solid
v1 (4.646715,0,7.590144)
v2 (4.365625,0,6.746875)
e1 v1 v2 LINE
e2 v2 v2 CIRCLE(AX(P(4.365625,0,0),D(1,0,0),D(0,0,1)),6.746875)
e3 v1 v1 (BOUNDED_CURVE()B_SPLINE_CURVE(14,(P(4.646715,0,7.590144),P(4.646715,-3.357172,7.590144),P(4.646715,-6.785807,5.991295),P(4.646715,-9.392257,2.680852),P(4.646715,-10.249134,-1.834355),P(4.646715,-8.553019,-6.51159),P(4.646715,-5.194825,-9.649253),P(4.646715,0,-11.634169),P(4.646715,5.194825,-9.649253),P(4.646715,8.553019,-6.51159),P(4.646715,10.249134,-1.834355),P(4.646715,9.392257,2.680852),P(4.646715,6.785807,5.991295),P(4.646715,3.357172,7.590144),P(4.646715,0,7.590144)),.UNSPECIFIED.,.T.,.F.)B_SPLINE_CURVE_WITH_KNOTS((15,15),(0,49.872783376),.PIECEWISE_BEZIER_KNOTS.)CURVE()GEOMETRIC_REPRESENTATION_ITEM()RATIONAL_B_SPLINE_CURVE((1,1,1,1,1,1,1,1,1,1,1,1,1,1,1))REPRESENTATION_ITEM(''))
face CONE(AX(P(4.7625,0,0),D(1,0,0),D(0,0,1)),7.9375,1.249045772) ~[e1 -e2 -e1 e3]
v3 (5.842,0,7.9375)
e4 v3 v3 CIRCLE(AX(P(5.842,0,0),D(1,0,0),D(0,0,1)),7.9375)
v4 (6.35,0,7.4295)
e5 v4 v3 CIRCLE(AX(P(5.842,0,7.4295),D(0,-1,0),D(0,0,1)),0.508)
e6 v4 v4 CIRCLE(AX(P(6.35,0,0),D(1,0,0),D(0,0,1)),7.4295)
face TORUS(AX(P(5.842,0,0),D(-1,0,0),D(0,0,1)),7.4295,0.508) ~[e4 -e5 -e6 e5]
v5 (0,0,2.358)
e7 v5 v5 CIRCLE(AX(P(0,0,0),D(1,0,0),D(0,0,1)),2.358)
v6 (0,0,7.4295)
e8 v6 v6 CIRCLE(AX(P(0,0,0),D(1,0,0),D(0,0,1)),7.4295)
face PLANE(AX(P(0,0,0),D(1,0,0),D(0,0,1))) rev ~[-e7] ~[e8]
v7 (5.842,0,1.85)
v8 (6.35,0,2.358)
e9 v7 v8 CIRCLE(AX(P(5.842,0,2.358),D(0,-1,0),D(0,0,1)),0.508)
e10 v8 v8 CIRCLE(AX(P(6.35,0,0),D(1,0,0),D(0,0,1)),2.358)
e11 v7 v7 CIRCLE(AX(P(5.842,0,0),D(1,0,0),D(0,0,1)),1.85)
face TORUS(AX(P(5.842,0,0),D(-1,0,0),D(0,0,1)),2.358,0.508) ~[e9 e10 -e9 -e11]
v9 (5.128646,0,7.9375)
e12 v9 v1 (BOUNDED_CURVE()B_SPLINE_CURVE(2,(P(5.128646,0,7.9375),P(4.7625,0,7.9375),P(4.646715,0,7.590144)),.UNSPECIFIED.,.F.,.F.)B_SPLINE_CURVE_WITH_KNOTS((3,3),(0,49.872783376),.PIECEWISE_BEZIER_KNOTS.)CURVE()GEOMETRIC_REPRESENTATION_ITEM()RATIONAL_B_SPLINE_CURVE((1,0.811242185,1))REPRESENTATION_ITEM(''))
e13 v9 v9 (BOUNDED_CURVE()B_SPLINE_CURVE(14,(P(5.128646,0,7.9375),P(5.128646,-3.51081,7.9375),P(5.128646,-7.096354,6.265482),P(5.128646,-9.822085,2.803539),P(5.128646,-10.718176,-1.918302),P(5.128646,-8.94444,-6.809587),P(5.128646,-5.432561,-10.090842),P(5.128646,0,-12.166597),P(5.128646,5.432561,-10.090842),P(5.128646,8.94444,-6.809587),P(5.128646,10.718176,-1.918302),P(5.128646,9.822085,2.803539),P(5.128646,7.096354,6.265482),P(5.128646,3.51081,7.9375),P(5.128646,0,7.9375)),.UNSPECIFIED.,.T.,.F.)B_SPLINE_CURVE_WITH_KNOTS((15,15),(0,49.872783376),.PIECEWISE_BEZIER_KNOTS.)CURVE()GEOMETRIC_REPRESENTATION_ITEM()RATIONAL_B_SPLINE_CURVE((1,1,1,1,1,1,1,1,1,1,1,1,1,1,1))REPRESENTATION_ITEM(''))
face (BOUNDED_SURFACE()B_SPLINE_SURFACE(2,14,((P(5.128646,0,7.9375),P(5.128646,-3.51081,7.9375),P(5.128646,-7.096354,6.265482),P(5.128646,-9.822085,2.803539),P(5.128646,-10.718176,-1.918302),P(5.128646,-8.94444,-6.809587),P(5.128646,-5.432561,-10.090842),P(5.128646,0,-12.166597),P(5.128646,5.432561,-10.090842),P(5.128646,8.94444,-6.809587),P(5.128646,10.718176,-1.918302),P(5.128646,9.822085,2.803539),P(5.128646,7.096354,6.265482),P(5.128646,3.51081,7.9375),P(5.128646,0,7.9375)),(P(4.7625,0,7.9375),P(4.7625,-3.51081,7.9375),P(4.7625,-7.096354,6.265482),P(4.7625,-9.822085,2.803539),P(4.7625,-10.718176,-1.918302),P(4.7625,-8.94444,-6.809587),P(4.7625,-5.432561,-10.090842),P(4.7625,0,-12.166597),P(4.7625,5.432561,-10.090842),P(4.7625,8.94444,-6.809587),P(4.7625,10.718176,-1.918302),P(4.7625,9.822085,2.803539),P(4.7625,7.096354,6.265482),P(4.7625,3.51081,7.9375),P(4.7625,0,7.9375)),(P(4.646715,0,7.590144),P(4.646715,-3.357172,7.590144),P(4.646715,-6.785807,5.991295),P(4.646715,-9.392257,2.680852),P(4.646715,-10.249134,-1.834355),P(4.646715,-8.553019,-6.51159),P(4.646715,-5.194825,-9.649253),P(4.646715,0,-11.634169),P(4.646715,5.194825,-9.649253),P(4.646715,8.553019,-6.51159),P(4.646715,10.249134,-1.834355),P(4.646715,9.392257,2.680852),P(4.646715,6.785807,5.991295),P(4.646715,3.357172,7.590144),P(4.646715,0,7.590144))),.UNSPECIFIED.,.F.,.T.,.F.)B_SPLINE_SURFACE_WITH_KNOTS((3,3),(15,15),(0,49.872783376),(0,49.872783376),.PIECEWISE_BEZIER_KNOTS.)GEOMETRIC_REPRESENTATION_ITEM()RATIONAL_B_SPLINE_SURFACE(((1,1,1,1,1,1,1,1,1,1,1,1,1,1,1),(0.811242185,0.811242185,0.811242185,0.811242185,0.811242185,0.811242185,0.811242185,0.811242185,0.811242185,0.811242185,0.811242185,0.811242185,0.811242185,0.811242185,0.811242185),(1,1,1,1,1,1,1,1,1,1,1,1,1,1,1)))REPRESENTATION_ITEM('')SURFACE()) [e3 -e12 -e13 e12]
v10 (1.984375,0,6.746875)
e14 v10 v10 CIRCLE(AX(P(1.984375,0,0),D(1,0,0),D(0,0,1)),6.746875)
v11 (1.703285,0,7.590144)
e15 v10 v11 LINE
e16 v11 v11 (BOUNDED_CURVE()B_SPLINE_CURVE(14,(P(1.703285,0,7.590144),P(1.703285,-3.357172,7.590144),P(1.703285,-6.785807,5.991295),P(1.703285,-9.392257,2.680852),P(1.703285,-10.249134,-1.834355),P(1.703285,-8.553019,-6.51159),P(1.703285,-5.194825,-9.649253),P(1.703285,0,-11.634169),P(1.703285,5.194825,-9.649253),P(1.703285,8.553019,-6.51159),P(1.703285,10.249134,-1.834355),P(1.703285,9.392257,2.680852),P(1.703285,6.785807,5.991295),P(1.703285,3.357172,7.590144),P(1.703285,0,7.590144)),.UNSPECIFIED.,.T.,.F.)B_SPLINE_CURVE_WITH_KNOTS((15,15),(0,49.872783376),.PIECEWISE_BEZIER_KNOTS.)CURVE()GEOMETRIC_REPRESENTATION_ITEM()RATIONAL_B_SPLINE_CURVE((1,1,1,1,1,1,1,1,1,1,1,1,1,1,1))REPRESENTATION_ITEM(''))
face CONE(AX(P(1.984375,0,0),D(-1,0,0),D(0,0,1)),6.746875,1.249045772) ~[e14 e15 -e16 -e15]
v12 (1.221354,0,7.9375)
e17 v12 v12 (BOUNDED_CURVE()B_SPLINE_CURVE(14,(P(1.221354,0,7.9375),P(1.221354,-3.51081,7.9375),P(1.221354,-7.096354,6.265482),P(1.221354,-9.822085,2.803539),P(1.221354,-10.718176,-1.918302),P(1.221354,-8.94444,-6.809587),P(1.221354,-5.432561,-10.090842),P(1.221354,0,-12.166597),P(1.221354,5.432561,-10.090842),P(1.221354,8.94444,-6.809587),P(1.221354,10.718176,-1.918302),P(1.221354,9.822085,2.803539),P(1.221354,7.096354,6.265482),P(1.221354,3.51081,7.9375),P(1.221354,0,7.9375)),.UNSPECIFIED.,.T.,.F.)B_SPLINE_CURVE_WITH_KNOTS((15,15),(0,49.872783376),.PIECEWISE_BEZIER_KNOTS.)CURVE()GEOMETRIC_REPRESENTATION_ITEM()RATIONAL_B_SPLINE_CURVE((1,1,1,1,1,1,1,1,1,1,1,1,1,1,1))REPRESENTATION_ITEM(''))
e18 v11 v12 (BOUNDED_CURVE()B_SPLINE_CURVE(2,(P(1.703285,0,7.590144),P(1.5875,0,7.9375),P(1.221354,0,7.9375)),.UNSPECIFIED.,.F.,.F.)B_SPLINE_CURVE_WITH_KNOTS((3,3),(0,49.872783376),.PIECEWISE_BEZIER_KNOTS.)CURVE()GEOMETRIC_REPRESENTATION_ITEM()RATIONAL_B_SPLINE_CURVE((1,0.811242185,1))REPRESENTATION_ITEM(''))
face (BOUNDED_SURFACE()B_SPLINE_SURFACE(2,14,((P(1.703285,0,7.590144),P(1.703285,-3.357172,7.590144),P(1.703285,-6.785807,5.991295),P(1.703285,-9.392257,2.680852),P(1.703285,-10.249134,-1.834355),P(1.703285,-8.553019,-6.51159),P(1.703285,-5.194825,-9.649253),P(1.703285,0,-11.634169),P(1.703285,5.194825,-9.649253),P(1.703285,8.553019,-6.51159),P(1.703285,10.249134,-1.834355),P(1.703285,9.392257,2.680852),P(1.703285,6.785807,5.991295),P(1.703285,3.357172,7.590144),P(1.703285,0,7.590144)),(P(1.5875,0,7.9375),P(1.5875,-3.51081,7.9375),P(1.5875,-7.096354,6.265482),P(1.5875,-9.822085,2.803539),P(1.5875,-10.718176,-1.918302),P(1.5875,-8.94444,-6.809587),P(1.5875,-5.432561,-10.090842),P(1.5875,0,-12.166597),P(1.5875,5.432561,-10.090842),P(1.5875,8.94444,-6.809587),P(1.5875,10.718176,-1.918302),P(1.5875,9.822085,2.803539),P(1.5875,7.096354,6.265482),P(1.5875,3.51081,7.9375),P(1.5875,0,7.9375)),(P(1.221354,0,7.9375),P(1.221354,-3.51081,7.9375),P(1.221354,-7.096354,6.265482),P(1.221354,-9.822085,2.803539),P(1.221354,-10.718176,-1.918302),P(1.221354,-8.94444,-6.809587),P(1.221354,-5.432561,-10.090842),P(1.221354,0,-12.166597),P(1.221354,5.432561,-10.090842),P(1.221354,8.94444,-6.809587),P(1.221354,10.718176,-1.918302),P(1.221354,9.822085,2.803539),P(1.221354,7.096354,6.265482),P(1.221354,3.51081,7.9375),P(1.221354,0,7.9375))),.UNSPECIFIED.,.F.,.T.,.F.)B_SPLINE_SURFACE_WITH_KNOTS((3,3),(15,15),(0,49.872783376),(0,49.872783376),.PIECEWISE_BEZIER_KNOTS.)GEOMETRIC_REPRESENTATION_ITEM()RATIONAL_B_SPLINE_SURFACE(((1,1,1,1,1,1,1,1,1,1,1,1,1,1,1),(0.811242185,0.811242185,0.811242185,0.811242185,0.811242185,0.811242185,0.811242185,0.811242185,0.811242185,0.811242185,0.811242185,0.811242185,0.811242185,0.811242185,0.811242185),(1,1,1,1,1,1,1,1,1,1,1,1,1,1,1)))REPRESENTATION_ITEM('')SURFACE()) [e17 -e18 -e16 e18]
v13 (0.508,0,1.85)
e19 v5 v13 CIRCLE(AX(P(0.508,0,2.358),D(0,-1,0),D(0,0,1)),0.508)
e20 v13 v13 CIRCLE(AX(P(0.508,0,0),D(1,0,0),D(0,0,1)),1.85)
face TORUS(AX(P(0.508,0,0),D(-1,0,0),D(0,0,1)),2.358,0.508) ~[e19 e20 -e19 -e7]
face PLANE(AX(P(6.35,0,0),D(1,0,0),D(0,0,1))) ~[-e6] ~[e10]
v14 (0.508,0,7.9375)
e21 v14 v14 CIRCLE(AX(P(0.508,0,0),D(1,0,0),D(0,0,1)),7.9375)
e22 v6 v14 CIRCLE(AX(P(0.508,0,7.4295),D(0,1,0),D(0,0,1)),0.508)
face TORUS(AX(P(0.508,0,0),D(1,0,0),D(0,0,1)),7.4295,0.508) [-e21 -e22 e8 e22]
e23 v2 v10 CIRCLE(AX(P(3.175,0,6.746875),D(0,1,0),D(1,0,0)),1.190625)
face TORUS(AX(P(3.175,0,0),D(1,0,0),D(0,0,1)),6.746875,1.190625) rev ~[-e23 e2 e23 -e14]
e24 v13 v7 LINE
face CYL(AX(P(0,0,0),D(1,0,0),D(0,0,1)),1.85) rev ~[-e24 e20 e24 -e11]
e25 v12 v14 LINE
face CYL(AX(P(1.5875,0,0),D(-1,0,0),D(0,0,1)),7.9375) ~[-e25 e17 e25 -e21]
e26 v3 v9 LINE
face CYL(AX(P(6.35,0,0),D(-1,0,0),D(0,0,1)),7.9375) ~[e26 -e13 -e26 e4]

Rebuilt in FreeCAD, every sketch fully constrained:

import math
import FreeCAD as App
import Part
import Sketcher
from FreeCAD import Vector
Q = App.Units.Quantity


def edges_at(feature, points):
    """Names of the edges that pass closest to the given points."""
    edges = feature.Shape.Edges
    near = lambda p: min(range(len(edges)), key=lambda i: edges[i].distToShape(Part.Vertex(*p))[0])
    return sorted({f"Edge{near(p) + 1}" for p in points})

doc = App.newDocument("Part")
params = doc.addObject("Spreadsheet::Sheet", "Params")
for row, (alias, value) in enumerate([
    ("sketch1_radius", "0.046875 in"),
    ("sketch1_width", "0.25 in"),
    ("sketch1_width2", "0.0625 in"),
    ("revolution_angle", "360 deg"),
    ("fillet_radius", "0.02 in"),
], start=1):
    params.set(f"A{row}", alias)
    params.set(f"B{row}", "=" + value)
    params.setAlias(f"B{row}", alias)

body = doc.addObject("PartDesign::Body", "Body")

sketch1 = doc.addObject("Sketcher::SketchObject", "Sketch")
body.addObject(sketch1)
sketch1.AttachmentSupport = (doc.XZ_Plane, [""])
sketch1.MapMode = "FlatFace"
sketch1.addGeometry(Part.LineSegment(Vector(0, 7.9, 0), Vector(0, 1.9, 0)), False)
sketch1.addGeometry(Part.LineSegment(Vector(0, 1.9, 0), Vector(6.3, 1.9, 0)), False)
sketch1.addGeometry(Part.LineSegment(Vector(6.3, 1.9, 0), Vector(6.3, 7.9, 0)), False)
sketch1.addGeometry(Part.LineSegment(Vector(6.3, 7.9, 0), Vector(4.8, 7.9, 0)), False)
sketch1.addGeometry(Part.LineSegment(Vector(4.8, 7.9, 0), Vector(4.4, 6.7, 0)), False)
sketch1.addGeometry(Part.ArcOfCircle(Part.Circle(Vector(3.2, 6.7, 0), Vector(0, 0, 1), 1.2), math.radians(180), math.radians(360)), False)
sketch1.addGeometry(Part.LineSegment(Vector(2, 6.7, 0), Vector(1.6, 7.9, 0)), False)
sketch1.addGeometry(Part.LineSegment(Vector(1.6, 7.9, 0), Vector(0, 7.9, 0)), False)
sketch1.addConstraint(Sketcher.Constraint("Coincident", 0, 2, 1, 1))
sketch1.addConstraint(Sketcher.Constraint("Coincident", 1, 2, 2, 1))
sketch1.addConstraint(Sketcher.Constraint("Coincident", 2, 2, 3, 1))
sketch1.addConstraint(Sketcher.Constraint("Coincident", 3, 2, 4, 1))
sketch1.addConstraint(Sketcher.Constraint("Coincident", 4, 2, 5, 2))
sketch1.addConstraint(Sketcher.Constraint("Coincident", 5, 1, 6, 1))
sketch1.addConstraint(Sketcher.Constraint("Coincident", 6, 2, 7, 1))
sketch1.addConstraint(Sketcher.Constraint("Coincident", 7, 2, 0, 1))
sketch1.addConstraint(Sketcher.Constraint("Vertical", 0))
sketch1.addConstraint(Sketcher.Constraint("Horizontal", 1))
sketch1.addConstraint(Sketcher.Constraint("Vertical", 2))
sketch1.addConstraint(Sketcher.Constraint("Horizontal", 3))
sketch1.addConstraint(Sketcher.Constraint("Horizontal", 7))
sketch1.addConstraint(Sketcher.Constraint("PointOnObject", 0, 2, -2))
sketch1.addConstraint(Sketcher.Constraint("Horizontal", 5, 3, 4, 2))
sketch1.addConstraint(Sketcher.Constraint("Horizontal", 4, 2, 5, 1))
sketch1.addConstraint(Sketcher.Constraint("Horizontal", 3, 2, 6, 2))
sketch1.addConstraint(Sketcher.Constraint("Equal", 3, 7))
sketch1.addConstraint(Sketcher.Constraint("Equal", 4, 6))
sketch1.addConstraint(Sketcher.Constraint("Radius", 5, Q("0.046875 in")))
sketch1.addConstraint(Sketcher.Constraint("DistanceX", 1, 1, 1, 2, Q("0.25 in")))
sketch1.addConstraint(Sketcher.Constraint("DistanceX", 3, 2, 3, 1, Q("0.0625 in")))
sketch1.addConstraint(Sketcher.Constraint("DistanceY", -1, 1, 5, 3, Q("0.265625 in")))
sketch1.addConstraint(Sketcher.Constraint("DistanceY", -1, 1, 2, 2, Q("0.3125 in")))
sketch1.addConstraint(Sketcher.Constraint("DistanceY", 0, 2, 0, 1, 6.0875))
sketch1.setExpression("Constraints[19]", "Params.sketch1_radius")
sketch1.setExpression("Constraints[20]", "Params.sketch1_width")
sketch1.setExpression("Constraints[21]", "Params.sketch1_width2")
revolution = doc.addObject("PartDesign::Revolution", "Revolution")
body.addObject(revolution)
revolution.Profile = sketch1
revolution.ReferenceAxis = (sketch1, ["H_Axis"])
revolution.setExpression("Angle", "Params.revolution_angle")
doc.recompute()

fillet = doc.addObject("PartDesign::Fillet", "Fillet")
body.addObject(fillet)
fillet.Base = (revolution, edges_at(revolution, [
    (0, 0, -7.938),
    (0, 0, -1.85),
    (6.35, 0, -1.85),
    (6.35, 0, -7.938),
    (1.587, 0, -7.938),
    (4.763, 0, -7.938),
]))
fillet.setExpression("Radius", "Params.fillet_radius")

doc.recompute()
